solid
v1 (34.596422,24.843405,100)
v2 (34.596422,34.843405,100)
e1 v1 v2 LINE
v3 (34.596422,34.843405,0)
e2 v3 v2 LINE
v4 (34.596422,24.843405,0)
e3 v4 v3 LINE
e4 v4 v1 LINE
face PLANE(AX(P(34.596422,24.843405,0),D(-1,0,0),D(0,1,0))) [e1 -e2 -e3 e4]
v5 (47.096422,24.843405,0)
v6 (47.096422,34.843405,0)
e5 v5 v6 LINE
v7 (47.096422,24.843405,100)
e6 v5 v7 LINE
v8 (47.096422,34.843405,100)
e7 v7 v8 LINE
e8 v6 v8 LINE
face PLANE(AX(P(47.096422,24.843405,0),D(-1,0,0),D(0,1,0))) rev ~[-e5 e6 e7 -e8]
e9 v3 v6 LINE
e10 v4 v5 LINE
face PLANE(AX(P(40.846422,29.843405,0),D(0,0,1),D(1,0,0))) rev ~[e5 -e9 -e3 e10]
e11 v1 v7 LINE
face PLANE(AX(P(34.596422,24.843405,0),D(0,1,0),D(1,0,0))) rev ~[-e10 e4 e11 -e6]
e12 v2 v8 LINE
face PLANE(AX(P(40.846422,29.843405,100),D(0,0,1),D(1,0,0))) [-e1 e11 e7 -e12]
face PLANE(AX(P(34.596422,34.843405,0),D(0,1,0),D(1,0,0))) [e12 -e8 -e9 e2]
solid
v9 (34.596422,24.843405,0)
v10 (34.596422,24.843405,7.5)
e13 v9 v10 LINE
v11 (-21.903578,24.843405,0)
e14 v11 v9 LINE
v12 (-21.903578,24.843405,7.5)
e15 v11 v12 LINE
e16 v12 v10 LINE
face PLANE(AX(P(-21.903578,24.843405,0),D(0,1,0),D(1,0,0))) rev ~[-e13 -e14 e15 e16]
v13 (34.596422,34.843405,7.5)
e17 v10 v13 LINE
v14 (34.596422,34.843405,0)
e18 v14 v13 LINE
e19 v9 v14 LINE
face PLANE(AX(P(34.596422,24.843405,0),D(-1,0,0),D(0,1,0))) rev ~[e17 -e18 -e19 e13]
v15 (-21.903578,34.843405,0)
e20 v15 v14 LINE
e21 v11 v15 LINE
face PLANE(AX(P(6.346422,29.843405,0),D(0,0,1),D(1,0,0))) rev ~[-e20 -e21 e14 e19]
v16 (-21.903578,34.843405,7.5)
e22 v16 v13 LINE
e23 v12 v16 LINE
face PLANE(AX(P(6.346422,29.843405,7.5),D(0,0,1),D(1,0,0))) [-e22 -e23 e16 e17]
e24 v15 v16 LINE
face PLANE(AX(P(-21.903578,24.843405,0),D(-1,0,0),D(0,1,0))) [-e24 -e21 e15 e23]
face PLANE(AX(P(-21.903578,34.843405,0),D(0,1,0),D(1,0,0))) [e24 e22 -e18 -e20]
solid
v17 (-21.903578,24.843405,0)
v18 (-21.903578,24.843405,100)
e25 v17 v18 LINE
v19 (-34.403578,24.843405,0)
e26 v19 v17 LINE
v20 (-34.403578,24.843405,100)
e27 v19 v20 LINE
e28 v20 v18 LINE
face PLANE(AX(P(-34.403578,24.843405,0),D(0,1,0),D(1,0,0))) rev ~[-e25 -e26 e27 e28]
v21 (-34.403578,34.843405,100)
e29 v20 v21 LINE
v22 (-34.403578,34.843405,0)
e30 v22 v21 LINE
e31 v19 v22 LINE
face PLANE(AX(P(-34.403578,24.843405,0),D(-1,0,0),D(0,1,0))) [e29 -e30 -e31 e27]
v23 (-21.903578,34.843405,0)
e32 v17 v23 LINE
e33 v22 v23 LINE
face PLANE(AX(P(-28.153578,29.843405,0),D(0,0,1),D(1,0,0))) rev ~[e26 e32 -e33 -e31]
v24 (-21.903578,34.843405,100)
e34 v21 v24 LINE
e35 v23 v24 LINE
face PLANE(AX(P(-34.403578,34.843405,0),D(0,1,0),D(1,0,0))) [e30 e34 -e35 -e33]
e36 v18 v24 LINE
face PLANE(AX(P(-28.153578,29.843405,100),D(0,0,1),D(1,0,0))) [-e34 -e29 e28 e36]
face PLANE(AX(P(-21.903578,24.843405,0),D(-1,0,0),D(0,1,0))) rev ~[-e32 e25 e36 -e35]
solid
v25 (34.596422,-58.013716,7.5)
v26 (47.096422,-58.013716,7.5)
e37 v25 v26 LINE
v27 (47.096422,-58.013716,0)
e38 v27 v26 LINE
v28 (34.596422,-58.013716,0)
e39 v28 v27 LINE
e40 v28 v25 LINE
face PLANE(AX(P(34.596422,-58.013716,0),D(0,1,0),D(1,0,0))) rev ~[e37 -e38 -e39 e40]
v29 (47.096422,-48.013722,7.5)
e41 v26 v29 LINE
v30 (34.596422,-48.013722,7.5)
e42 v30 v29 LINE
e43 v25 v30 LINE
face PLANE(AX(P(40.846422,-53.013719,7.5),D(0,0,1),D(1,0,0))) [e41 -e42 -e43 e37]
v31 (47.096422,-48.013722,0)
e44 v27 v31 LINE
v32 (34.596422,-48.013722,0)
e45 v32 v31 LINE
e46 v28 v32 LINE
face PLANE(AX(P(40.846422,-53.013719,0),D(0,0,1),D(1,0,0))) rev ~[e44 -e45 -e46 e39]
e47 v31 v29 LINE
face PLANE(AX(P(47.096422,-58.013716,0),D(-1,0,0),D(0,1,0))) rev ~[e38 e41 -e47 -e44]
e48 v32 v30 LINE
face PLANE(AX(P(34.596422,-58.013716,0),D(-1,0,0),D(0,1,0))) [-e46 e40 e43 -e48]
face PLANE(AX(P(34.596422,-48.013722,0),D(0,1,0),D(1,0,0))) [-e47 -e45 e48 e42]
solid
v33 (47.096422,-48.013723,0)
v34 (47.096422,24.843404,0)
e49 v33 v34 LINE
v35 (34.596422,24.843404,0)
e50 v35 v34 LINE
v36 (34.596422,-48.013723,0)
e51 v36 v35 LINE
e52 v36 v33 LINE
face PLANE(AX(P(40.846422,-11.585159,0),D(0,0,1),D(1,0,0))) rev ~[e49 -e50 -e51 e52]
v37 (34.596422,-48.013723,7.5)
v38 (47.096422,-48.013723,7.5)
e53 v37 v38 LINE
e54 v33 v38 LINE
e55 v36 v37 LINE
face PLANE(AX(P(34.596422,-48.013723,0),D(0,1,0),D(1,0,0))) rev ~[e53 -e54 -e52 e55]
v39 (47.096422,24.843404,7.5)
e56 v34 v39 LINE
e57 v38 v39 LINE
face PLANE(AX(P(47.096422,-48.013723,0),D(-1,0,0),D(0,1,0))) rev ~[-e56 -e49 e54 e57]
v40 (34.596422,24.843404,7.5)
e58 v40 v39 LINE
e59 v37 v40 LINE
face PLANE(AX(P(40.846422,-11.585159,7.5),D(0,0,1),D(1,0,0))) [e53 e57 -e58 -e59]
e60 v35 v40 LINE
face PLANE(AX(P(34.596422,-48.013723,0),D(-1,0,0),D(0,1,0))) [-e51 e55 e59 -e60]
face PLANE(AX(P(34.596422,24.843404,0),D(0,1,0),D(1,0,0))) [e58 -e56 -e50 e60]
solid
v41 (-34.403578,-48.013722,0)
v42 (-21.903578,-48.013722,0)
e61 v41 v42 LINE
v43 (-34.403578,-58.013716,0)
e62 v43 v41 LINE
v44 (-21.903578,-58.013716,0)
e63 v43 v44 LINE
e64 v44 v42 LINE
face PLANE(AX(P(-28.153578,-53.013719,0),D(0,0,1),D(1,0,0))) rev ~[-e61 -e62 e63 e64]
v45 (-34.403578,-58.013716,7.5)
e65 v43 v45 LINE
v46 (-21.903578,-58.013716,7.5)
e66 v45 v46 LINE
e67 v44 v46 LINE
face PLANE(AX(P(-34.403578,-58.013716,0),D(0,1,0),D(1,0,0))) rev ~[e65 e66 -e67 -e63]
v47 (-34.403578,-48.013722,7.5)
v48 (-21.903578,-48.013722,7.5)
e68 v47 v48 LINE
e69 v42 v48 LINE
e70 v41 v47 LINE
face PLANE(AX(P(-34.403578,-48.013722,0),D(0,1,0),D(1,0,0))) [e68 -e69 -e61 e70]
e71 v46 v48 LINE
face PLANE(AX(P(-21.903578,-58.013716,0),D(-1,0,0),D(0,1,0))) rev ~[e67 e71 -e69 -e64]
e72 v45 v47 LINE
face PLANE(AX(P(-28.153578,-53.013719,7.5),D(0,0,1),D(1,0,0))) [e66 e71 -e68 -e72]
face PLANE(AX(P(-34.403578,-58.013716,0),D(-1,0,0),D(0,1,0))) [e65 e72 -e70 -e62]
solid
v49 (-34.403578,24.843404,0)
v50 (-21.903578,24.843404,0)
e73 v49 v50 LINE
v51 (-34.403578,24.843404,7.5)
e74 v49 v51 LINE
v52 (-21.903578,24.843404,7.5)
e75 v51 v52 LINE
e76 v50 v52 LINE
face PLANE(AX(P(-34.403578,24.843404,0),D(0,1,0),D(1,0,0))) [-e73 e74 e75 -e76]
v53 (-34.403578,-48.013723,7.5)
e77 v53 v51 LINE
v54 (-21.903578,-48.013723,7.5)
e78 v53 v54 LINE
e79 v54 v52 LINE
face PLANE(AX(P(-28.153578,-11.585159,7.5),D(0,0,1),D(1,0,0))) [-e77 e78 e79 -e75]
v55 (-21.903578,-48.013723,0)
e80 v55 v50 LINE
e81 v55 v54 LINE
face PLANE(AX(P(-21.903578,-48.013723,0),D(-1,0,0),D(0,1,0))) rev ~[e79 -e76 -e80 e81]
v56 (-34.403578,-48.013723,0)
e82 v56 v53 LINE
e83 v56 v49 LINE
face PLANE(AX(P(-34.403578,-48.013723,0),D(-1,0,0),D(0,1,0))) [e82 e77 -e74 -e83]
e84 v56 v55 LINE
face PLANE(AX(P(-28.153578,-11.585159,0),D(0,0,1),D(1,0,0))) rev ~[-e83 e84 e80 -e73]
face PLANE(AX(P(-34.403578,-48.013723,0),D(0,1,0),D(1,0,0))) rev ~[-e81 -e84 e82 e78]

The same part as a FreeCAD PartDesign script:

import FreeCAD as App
import Part
import Sketcher

V = App.Vector
Q = App.Units.Quantity

doc = App.newDocument("Part")
params = doc.addObject("Spreadsheet::Sheet", "Params")
for row, (alias, value) in enumerate([
    ("sketch1_height", "10 mm"),
    ("sketch1_width", "12.5 mm"),
    ("pad1_length", "100 mm"),
    ("sketch2_height", "10 mm"),
    ("sketch2_width", "12.5 mm"),
    ("sketch2_width2", "56.5 mm"),
    ("pad2_length", "7.5 mm"),
    ("sketch3_width", "12.5 mm"),
    ("pad3_length", "7.5 mm"),
], start=1):
    params.set(f"A{row}", alias)
    params.set(f"B{row}", "=" + value)
    params.setAlias(f"B{row}", alias)

body = doc.addObject("PartDesign::Body", "Body")
body.AllowCompound = True

# Sketch on XY plane
sketch1 = doc.addObject("Sketcher::SketchObject", "Sketch")
body.addObject(sketch1)
sketch1.AttachmentSupport = (doc.XY_Plane, [""])
sketch1.MapMode = "FlatFace"
sketch1.addGeometry([
    Part.LineSegment(V(-34, 35, 0), V(-34, 25, 0)),  # 0
    Part.LineSegment(V(-34, 25, 0), V(-22, 25, 0)),  # 1
    Part.LineSegment(V(-22, 25, 0), V(-22, 35, 0)),  # 2
    Part.LineSegment(V(-22, 35, 0), V(-34, 35, 0)),  # 3
    Part.LineSegment(V(35, 35, 0), V(35, 25, 0)),  # 4
    Part.LineSegment(V(35, 25, 0), V(47, 25, 0)),  # 5
    Part.LineSegment(V(47, 25, 0), V(47, 35, 0)),  # 6
    Part.LineSegment(V(47, 35, 0), V(35, 35, 0)),  # 7
], False)
sketch1.addConstraint([
    Sketcher.Constraint("Coincident", 0, 2, 1, 1),
    Sketcher.Constraint("Coincident", 1, 2, 2, 1),
    Sketcher.Constraint("Coincident", 2, 2, 3, 1),
    Sketcher.Constraint("Coincident", 3, 2, 0, 1),
    Sketcher.Constraint("Coincident", 4, 2, 5, 1),
    Sketcher.Constraint("Coincident", 5, 2, 6, 1),
    Sketcher.Constraint("Coincident", 6, 2, 7, 1),
    Sketcher.Constraint("Coincident", 7, 2, 4, 1),
    Sketcher.Constraint("Vertical", 0),
    Sketcher.Constraint("Horizontal", 1),
    Sketcher.Constraint("Vertical", 2),
    Sketcher.Constraint("Horizontal", 3),
    Sketcher.Constraint("Vertical", 4),
    Sketcher.Constraint("Horizontal", 5),
    Sketcher.Constraint("Vertical", 6),
    Sketcher.Constraint("Horizontal", 7),
    Sketcher.Constraint("Horizontal", 1, 2, 4, 2),
    Sketcher.Constraint("Horizontal", 3, 2, 6, 2),
    Sketcher.Constraint("Equal", 3, 5),
    Sketcher.Constraint("DistanceY", 0, 2, 0, 1, Q("10 mm")),
    Sketcher.Constraint("DistanceX", 1, 1, 1, 2, Q("12.5 mm")),
    Sketcher.Constraint("DistanceX", 0, 2, 4, 2, Q("69 mm")),
    Sketcher.Constraint("DistanceX", 0, 2, -1, 1, Q("34.403578 mm")),
    Sketcher.Constraint("DistanceY", -1, 1, 0, 2, Q("24.843405 mm")),
])
sketch1.setExpression("Constraints[19]", "Params.sketch1_height")
sketch1.setExpression("Constraints[20]", "Params.sketch1_width")
pad1 = doc.addObject("PartDesign::Pad", "Pad")
body.addObject(pad1)
pad1.Profile = sketch1
pad1.setExpression("Length", "Params.pad1_length")
body2 = doc.addObject("PartDesign::Body", "Body001")
body2.AllowCompound = True

# Sketch on XY plane
sketch2 = doc.addObject("Sketcher::SketchObject", "Sketch001")
body2.addObject(sketch2)
sketch2.AttachmentSupport = (doc.getObject("XY_Plane001"), [""])
sketch2.MapMode = "FlatFace"
sketch2.addGeometry([
    Part.LineSegment(V(-34, 25, 0), V(-34, -48, 0)),  # 0
    Part.LineSegment(V(-34, -48, 0), V(-22, -48, 0)),  # 1
    Part.LineSegment(V(-22, -48, 0), V(-22, 25, 0)),  # 2
    Part.LineSegment(V(-22, 25, 0), V(-34, 25, 0)),  # 3
    Part.LineSegment(V(35, 25, 0), V(35, -48, 0)),  # 4
    Part.LineSegment(V(35, -48, 0), V(47, -48, 0)),  # 5
    Part.LineSegment(V(47, -48, 0), V(47, 25, 0)),  # 6
    Part.LineSegment(V(47, 25, 0), V(35, 25, 0)),  # 7
    Part.LineSegment(V(-22, 35, 0), V(-22, 25, 0)),  # 8
    Part.LineSegment(V(-22, 25, 0), V(35, 25, 0)),  # 9
    Part.LineSegment(V(35, 25, 0), V(35, 35, 0)),  # 10
    Part.LineSegment(V(35, 35, 0), V(-22, 35, 0)),  # 11
], False)
sketch2.addConstraint([
    Sketcher.Constraint("Coincident", 0, 2, 1, 1),
    Sketcher.Constraint("Coincident", 1, 2, 2, 1),
    Sketcher.Constraint("Coincident", 2, 2, 3, 1),
    Sketcher.Constraint("Coincident", 3, 2, 0, 1),
    Sketcher.Constraint("Coincident", 4, 2, 5, 1),
    Sketcher.Constraint("Coincident", 5, 2, 6, 1),
    Sketcher.Constraint("Coincident", 6, 2, 7, 1),
    Sketcher.Constraint("Coincident", 7, 2, 4, 1),
    Sketcher.Constraint("Coincident", 8, 2, 9, 1),
    Sketcher.Constraint("Coincident", 9, 2, 10, 1),
    Sketcher.Constraint("Coincident", 10, 2, 11, 1),
    Sketcher.Constraint("Coincident", 11, 2, 8, 1),
    Sketcher.Constraint("Vertical", 0),
    Sketcher.Constraint("Horizontal", 1),
    Sketcher.Constraint("Vertical", 2),
    Sketcher.Constraint("Horizontal", 3),
    Sketcher.Constraint("Vertical", 4),
    Sketcher.Constraint("Horizontal", 5),
    Sketcher.Constraint("Vertical", 6),
    Sketcher.Constraint("Horizontal", 7),
    Sketcher.Constraint("Vertical", 8),
    Sketcher.Constraint("Horizontal", 9),
    Sketcher.Constraint("Vertical", 10),
    Sketcher.Constraint("Horizontal", 11),
    Sketcher.Constraint("Coincident", 8, 2, 2, 2),
    Sketcher.Constraint("Coincident", 9, 2, 7, 2),
    Sketcher.Constraint("Horizontal", 1, 2, 4, 2),
    Sketcher.Constraint("Equal", 3, 5),
    Sketcher.Constraint("DistanceY", 8, 2, 8, 1, Q("10 mm")),
    Sketcher.Constraint("DistanceX", 1, 1, 1, 2, Q("12.5 mm")),
    Sketcher.Constraint("DistanceX", 9, 1, 9, 2, Q("56.5 mm")),
    Sketcher.Constraint("DistanceY", 0, 2, 0, 1, Q("72.857127 mm")),
    Sketcher.Constraint("DistanceX", 0, 2, -1, 1, Q("34.403578 mm")),
    Sketcher.Constraint("DistanceY", 0, 2, -1, 1, Q("48.013723 mm")),
])
sketch2.setExpression("Constraints[28]", "Params.sketch2_height")
sketch2.setExpression("Constraints[29]", "Params.sketch2_width")
sketch2.setExpression("Constraints[30]", "Params.sketch2_width2")
pad2 = doc.addObject("PartDesign::Pad", "Pad001")
body2.addObject(pad2)
pad2.Profile = sketch2
pad2.setExpression("Length", "Params.pad2_length")
body3 = doc.addObject("PartDesign::Body", "Body002")
body3.AllowCompound = True

# Sketch on XY plane
sketch3 = doc.addObject("Sketcher::SketchObject", "Sketch002")
body3.addObject(sketch3)
sketch3.AttachmentSupport = (doc.getObject("XY_Plane002"), [""])
sketch3.MapMode = "FlatFace"
sketch3.addGeometry([
    Part.LineSegment(V(-34, -48, 0), V(-34, -58, 0)),  # 0
    Part.LineSegment(V(-34, -58, 0), V(-22, -58, 0)),  # 1
    Part.LineSegment(V(-22, -58, 0), V(-22, -48, 0)),  # 2
    Part.LineSegment(V(-22, -48, 0), V(-34, -48, 0)),  # 3
    Part.LineSegment(V(35, -48, 0), V(35, -58, 0)),  # 4
    Part.LineSegment(V(35, -58, 0), V(47, -58, 0)),  # 5
    Part.LineSegment(V(47, -58, 0), V(47, -48, 0)),  # 6
    Part.LineSegment(V(47, -48, 0), V(35, -48, 0)),  # 7
], False)
sketch3.addConstraint([
    Sketcher.Constraint("Coincident", 0, 2, 1, 1),
    Sketcher.Constraint("Coincident", 1, 2, 2, 1),
    Sketcher.Constraint("Coincident", 2, 2, 3, 1),
    Sketcher.Constraint("Coincident", 3, 2, 0, 1),
    Sketcher.Constraint("Coincident", 4, 2, 5, 1),
    Sketcher.Constraint("Coincident", 5, 2, 6, 1),
    Sketcher.Constraint("Coincident", 6, 2, 7, 1),
    Sketcher.Constraint("Coincident", 7, 2, 4, 1),
    Sketcher.Constraint("Vertical", 0),
    Sketcher.Constraint("Horizontal", 1),
    Sketcher.Constraint("Vertical", 2),
    Sketcher.Constraint("Horizontal", 3),
    Sketcher.Constraint("Vertical", 4),
    Sketcher.Constraint("Horizontal", 5),
    Sketcher.Constraint("Vertical", 6),
    Sketcher.Constraint("Horizontal", 7),
    Sketcher.Constraint("Horizontal", 1, 2, 4, 2),
    Sketcher.Constraint("Horizontal", 3, 2, 6, 2),
    Sketcher.Constraint("Equal", 3, 5),
    Sketcher.Constraint("DistanceX", 1, 1, 1, 2, Q("12.5 mm")),
    Sketcher.Constraint("DistanceX", 0, 2, 4, 2, Q("69 mm")),
    Sketcher.Constraint("DistanceY", 0, 2, 0, 1, Q("9.999994 mm")),
    Sketcher.Constraint("DistanceX", 0, 2, -1, 1, Q("34.403578 mm")),
    Sketcher.Constraint("DistanceY", 0, 2, -1, 1, Q("58.013716 mm")),
])
sketch3.setExpression("Constraints[19]", "Params.sketch3_width")
pad3 = doc.addObject("PartDesign::Pad", "Pad002")
body3.addObject(pad3)
pad3.Profile = sketch3
pad3.setExpression("Length", "Params.pad3_length")

doc.recompute()
